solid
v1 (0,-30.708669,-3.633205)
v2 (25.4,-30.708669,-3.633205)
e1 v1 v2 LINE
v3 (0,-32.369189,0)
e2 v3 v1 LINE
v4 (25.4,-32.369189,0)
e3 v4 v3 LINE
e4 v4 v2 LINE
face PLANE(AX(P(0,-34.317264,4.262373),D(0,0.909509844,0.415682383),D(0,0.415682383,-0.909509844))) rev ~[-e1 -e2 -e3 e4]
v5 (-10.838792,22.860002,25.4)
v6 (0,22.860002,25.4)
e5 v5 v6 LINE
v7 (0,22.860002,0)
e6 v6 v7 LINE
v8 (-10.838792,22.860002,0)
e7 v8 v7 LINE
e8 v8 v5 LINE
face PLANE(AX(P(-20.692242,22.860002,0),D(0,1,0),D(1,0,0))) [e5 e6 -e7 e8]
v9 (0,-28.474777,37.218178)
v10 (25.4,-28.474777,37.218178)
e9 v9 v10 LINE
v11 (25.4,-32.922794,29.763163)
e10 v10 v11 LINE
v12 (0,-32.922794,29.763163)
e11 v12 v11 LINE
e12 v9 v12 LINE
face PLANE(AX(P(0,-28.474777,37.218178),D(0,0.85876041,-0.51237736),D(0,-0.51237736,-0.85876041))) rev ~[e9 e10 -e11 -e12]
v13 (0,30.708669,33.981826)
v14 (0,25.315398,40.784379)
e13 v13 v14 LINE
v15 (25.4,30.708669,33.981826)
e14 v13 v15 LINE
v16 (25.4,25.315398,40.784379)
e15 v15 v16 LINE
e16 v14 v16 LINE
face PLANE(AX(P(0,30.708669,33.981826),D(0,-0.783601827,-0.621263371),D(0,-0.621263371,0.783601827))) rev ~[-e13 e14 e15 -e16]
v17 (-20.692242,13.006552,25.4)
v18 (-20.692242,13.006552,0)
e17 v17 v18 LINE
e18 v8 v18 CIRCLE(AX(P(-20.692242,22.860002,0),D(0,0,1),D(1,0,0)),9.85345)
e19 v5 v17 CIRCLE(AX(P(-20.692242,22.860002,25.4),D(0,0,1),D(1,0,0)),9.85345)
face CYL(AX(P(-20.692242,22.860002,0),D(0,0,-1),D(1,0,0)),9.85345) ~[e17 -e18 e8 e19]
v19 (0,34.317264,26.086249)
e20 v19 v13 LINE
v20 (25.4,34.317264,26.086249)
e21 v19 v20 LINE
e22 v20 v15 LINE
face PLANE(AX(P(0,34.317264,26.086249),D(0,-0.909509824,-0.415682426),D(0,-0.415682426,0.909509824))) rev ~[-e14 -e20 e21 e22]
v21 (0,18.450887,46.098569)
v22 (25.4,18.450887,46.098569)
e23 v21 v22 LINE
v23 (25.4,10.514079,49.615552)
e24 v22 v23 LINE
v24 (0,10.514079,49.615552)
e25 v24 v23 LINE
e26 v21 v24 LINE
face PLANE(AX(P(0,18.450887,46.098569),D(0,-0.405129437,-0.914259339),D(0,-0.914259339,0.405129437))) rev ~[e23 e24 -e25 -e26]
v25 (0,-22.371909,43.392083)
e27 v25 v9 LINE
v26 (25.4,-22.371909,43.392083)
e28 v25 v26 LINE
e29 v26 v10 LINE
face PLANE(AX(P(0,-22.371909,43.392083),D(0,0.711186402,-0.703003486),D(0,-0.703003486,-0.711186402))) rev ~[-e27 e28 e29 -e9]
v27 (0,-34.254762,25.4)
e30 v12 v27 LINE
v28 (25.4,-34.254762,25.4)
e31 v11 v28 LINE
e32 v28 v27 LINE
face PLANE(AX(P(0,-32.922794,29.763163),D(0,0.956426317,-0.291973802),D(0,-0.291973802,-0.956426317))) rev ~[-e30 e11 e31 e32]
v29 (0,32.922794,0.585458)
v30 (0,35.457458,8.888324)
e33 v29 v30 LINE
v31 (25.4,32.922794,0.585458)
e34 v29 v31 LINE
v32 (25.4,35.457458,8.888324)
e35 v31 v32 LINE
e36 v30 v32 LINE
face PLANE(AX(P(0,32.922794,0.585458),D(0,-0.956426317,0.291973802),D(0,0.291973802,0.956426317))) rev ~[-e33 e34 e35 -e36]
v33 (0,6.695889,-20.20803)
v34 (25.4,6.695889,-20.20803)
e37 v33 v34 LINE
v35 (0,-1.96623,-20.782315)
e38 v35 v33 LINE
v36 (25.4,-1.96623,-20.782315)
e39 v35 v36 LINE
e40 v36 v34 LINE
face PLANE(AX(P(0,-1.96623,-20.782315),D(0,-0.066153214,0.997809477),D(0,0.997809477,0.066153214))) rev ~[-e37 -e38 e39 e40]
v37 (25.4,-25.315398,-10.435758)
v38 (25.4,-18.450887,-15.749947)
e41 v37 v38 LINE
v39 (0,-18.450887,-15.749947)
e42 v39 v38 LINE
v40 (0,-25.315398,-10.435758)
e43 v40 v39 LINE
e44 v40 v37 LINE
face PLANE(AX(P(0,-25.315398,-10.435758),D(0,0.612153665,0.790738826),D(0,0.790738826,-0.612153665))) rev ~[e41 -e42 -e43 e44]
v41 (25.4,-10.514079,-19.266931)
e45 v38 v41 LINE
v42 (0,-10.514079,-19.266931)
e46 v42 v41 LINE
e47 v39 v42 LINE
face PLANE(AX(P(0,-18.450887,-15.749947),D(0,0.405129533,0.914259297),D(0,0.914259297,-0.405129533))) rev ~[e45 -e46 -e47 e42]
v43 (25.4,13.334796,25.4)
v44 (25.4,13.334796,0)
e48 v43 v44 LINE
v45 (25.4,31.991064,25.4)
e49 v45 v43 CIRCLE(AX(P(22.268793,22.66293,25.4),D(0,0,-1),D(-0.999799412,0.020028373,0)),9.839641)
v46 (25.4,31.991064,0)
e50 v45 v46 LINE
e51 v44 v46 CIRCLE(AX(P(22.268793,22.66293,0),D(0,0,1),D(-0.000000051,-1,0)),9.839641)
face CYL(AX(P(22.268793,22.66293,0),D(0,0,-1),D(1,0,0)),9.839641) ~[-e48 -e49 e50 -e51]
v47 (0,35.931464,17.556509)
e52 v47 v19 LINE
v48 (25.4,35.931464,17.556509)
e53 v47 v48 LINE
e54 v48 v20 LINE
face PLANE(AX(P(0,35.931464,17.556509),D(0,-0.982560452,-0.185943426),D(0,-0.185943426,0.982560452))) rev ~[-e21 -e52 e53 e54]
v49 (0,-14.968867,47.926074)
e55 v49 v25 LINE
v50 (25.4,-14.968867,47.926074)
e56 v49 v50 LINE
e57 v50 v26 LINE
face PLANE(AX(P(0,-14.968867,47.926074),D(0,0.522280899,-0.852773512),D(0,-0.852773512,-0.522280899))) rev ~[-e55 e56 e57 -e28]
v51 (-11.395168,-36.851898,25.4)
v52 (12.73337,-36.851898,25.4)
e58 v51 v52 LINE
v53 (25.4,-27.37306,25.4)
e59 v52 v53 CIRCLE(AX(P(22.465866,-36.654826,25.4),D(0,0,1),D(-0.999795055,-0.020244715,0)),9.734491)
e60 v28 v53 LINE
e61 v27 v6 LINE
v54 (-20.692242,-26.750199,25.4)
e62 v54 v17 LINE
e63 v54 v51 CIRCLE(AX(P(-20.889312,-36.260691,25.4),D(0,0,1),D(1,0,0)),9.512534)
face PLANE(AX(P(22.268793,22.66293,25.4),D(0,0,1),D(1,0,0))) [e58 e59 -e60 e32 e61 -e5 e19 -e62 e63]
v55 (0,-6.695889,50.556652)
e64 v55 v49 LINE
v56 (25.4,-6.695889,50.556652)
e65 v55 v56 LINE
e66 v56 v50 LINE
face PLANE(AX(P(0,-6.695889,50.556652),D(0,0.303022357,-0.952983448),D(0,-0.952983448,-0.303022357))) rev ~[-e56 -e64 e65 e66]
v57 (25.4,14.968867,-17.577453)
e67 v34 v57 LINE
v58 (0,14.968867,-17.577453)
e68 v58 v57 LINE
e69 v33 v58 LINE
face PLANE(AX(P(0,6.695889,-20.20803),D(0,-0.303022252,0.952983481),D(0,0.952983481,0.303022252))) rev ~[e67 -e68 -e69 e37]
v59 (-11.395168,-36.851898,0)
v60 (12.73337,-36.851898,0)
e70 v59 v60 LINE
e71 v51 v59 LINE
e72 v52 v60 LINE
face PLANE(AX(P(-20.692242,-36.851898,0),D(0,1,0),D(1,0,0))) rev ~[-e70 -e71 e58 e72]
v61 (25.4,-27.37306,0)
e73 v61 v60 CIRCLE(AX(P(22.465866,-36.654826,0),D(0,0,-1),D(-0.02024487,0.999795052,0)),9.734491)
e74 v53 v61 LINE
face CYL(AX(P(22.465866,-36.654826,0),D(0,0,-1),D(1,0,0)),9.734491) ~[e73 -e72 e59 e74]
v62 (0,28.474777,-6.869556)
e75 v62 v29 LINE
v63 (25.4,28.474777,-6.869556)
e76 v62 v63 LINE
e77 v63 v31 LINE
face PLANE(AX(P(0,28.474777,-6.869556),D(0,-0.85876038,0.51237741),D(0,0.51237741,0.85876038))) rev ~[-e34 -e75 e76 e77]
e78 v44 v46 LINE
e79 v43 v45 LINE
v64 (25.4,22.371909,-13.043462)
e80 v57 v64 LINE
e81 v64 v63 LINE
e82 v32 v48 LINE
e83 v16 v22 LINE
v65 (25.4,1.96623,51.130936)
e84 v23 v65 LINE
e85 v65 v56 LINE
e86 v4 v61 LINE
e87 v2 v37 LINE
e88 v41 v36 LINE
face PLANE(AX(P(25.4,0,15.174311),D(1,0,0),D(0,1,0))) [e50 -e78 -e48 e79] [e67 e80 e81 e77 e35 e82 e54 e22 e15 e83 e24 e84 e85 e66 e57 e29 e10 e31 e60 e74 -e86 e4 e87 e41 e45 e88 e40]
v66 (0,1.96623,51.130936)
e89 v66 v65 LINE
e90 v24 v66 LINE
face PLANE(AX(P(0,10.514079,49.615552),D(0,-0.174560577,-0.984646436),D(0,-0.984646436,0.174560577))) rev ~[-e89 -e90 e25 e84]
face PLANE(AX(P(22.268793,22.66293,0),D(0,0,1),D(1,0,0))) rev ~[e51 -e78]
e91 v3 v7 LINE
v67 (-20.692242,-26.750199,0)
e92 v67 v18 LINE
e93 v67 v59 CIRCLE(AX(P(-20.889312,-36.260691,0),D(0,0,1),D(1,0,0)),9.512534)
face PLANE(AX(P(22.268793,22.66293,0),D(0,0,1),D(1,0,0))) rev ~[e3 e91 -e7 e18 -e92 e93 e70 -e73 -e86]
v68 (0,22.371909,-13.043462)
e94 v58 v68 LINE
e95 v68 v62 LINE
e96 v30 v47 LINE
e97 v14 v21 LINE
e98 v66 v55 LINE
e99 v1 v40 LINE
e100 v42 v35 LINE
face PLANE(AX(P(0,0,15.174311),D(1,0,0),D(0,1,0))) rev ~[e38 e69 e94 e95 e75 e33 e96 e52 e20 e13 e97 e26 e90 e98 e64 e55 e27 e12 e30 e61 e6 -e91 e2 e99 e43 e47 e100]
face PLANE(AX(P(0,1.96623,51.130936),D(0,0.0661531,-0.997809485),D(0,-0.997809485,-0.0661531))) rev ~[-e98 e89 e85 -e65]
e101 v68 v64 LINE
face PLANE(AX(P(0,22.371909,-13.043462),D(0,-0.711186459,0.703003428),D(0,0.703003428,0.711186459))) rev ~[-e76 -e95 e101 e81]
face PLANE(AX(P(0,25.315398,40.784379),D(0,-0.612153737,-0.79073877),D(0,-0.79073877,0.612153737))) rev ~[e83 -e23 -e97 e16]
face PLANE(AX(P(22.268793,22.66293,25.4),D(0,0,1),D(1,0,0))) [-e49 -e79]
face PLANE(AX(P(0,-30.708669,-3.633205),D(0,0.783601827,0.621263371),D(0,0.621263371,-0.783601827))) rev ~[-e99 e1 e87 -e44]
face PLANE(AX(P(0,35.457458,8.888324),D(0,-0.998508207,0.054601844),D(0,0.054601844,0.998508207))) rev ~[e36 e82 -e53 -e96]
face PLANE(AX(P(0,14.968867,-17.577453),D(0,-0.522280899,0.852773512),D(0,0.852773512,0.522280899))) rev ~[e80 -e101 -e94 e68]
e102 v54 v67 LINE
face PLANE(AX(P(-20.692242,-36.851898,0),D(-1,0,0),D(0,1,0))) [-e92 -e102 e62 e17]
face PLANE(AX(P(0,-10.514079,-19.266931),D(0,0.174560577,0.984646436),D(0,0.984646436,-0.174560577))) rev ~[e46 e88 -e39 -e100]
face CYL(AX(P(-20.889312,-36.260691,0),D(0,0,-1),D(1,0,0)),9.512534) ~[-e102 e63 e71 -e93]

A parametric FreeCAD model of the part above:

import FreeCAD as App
import Part
import Sketcher
from FreeCAD import Vector
Q = App.Units.Quantity


def add_polygon(sketch, points):
    """Adds a closed chain of lines whose ends are joined by coincident constraints."""
    first, n = sketch.GeometryCount, len(points)
    for a, b in zip(points, points[1:] + points[:1]):
        sketch.addGeometry(Part.LineSegment(App.Vector(*a, 0), App.Vector(*b, 0)), False)
    for i in range(n):
        sketch.addConstraint(Sketcher.Constraint("Coincident", first + i, 2, first + (i + 1) % n, 1))

doc = App.newDocument("Part")
body = doc.addObject("PartDesign::Body", "Body")

sketch1 = body.newObject("Sketcher::SketchObject", "Sketch")
sketch1.AttachmentSupport = (doc.getObject("XY_Plane"), [""])
sketch1.MapMode = "FlatFace"
add_polygon(sketch1, [(-21, 23), (-21, -37), (22, -37), (22, 23)])
sketch1.addConstraint([
    Sketcher.Constraint("Vertical", 0),
    Sketcher.Constraint("Horizontal", 1),
    Sketcher.Constraint("Vertical", 2),
    Sketcher.Constraint("Horizontal", 3),
    Sketcher.Constraint("DistanceY", -1, 1, 2, 2, Q("0.9000001 in")),
    Sketcher.Constraint("DistanceY", 0, 2, 0, 1, 59.7119),
    Sketcher.Constraint("DistanceX", 1, 1, 1, 2, 42.961035),
    Sketcher.Constraint("DistanceX", 0, 2, -1, 1, 20.692242),
])
pad1 = body.newObject("PartDesign::Pad", "Pad")
pad1.Profile = sketch1
pad1.Length = Q("1 in")

sketch2 = body.newObject("Sketcher::SketchObject", "Sketch001")
sketch2.AttachmentSupport = (doc.getObject("XY_Plane"), [""])
sketch2.MapMode = "FlatFace"
sketch2.addGeometry([
    Part.Circle(Vector(22, 23, 0), Vector(0, 0, 1), 10),
    Part.Circle(Vector(-21, 23, 0), Vector(0, 0, 1), 10),
    Part.Circle(Vector(22, -37, 0), Vector(0, 0, 1), 10),
    Part.Circle(Vector(-21, -36, 0), Vector(0, 0, 1), 10),
], False)
sketch2.addConstraint([
    Sketcher.Constraint("DistanceY", -1, 1, 1, 3, Q("0.9000001 in")),
    Sketcher.Constraint("Diameter", 1, 19.7069),
    Sketcher.Constraint("Diameter", 3, 19.025068),
    Sketcher.Constraint("Diameter", 0, 19.679282),
    Sketcher.Constraint("Diameter", 2, 19.468982),
    Sketcher.Constraint("DistanceY", -1, 1, 0, 3, 22.66293),
    Sketcher.Constraint("DistanceX", 1, 3, -1, 1, 20.692242),
    Sketcher.Constraint("DistanceY", 3, 3, -1, 1, 36.260691),
    Sketcher.Constraint("DistanceX", 3, 3, 1, 3, 0.19707),
    Sketcher.Constraint("DistanceX", -1, 1, 0, 3, 22.268793),
    Sketcher.Constraint("DistanceX", -1, 1, 2, 3, 22.465866),
    Sketcher.Constraint("DistanceY", 2, 3, -1, 1, 36.654826),
])
pad2 = body.newObject("PartDesign::Pad", "Pad001")
pad2.Profile = sketch2
pad2.Length = Q("1 in")

sketch3 = body.newObject("Sketcher::SketchObject", "Sketch002")
sketch3.AttachmentSupport = (doc.getObject("YZ_Plane"), [""])
sketch3.MapMode = "FlatFace"
add_polygon(sketch3, [(-2, -21), (7, -20), (15, -18), (22, -13), (28, -7), (33, 1), (35, 9), (36, 18), (34, 26), (31, 34), (25, 41), (18, 46), (11, 50), (2, 51), (-7, 51), (-15, 48), (-22, 43), (-28, 37), (-33, 30), (-35, 21), (-36, 13), (-34, 4), (-31, -4), (-25, -10), (-18, -16), (-11, -19)])
sketch3.addConstraint([
    Sketcher.Constraint("Parallel", 0, 13),
    Sketcher.Constraint("Parallel", 1, 14),
    Sketcher.Constraint("Parallel", 2, 15),
    Sketcher.Constraint("Parallel", 3, 16),
    Sketcher.Constraint("Parallel", 4, 17),
    Sketcher.Constraint("Parallel", 5, 18),
    Sketcher.Constraint("Parallel", 6, 19),
    Sketcher.Constraint("Parallel", 7, 20),
    Sketcher.Constraint("Parallel", 8, 21),
    Sketcher.Constraint("Parallel", 9, 22),
    Sketcher.Constraint("Parallel", 10, 23),
    Sketcher.Constraint("Parallel", 11, 24),
    Sketcher.Constraint("Parallel", 12, 25),
    Sketcher.Constraint("Equal", 0, 1),
    Sketcher.Constraint("Equal", 1, 2),
    Sketcher.Constraint("Equal", 2, 3),
    Sketcher.Constraint("Equal", 3, 4),
    Sketcher.Constraint("Equal", 4, 5),
    Sketcher.Constraint("Equal", 5, 6),
    Sketcher.Constraint("Equal", 6, 7),
    Sketcher.Constraint("Equal", 7, 8),
    Sketcher.Constraint("Equal", 8, 9),
    Sketcher.Constraint("Equal", 9, 10),
    Sketcher.Constraint("Equal", 9, 11),
    Sketcher.Constraint("Equal", 11, 12),
    Sketcher.Constraint("Equal", 12, 13),
    Sketcher.Constraint("Equal", 13, 14),
    Sketcher.Constraint("Equal", 14, 15),
    Sketcher.Constraint("Equal", 15, 16),
    Sketcher.Constraint("Equal", 16, 17),
    Sketcher.Constraint("Equal", 17, 18),
    Sketcher.Constraint("Equal", 18, 19),
    Sketcher.Constraint("Equal", 19, 20),
    Sketcher.Constraint("Equal", 20, 21),
    Sketcher.Constraint("Equal", 21, 22),
    Sketcher.Constraint("Equal", 22, 23),
    Sketcher.Constraint("Angle", 6, Q("86.869988 deg")),
    Sketcher.Constraint("DistanceX", 7, 2, 6, 2, 1.6142),
    Sketcher.Constraint("DistanceY", 5, 2, 8, 2, 25.093502),
    Sketcher.Constraint("DistanceY", 11, 2, 13, 2, 0.9411),
    Sketcher.Constraint("DistanceX", -1, 1, 0, 2, 6.695889),
    Sketcher.Constraint("DistanceY", 0, 2, -1, 1, 20.20803),
    Sketcher.Constraint("DistanceX", -1, 1, 2, 2, 22.371909),
    Sketcher.Constraint("DistanceY", -1, 1, 4, 2, 0.585458),
    Sketcher.Constraint("DistanceX", -1, 1, 5, 2, 35.457458),
    Sketcher.Constraint("DistanceY", -1, 1, 6, 2, 17.556509),
    Sketcher.Constraint("DistanceY", -1, 1, 7, 2, 26.086249),
    Sketcher.Constraint("DistanceY", -1, 1, 9, 2, 40.784379),
    Sketcher.Constraint("DistanceY", -1, 1, 10, 2, 46.098569),
    Sketcher.Constraint("DistanceX", -1, 1, 11, 2, 10.514079),
    Sketcher.Constraint("DistanceX", -1, 1, 12, 2, 1.96623),
    Sketcher.Constraint("DistanceY", -1, 1, 16, 2, 37.218178),
])
pad3 = body.newObject("PartDesign::Pad", "Pad002")
pad3.Profile = sketch3
pad3.Length = Q("1 in")

doc.recompute()
